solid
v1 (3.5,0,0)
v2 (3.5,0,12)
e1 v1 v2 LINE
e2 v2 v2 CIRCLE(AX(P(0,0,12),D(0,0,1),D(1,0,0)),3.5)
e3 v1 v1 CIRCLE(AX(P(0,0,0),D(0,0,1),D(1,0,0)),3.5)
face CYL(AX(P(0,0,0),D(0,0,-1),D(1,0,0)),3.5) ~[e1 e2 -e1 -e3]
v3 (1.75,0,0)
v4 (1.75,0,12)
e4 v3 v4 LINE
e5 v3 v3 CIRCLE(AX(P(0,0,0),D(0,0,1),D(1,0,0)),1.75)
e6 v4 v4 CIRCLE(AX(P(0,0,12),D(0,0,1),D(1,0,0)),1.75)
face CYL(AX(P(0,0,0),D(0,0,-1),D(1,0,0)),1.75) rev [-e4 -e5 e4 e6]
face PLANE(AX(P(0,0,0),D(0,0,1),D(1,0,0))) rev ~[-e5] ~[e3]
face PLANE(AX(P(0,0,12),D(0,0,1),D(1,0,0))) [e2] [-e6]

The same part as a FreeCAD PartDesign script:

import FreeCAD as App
import Part
import Sketcher

V = App.Vector
Q = App.Units.Quantity

doc = App.newDocument("Part")
body = doc.addObject("PartDesign::Body", "Body")

# Sketch on XY plane
sketch1 = body.newObject("Sketcher::SketchObject", "Sketch")
sketch1.AttachmentSupport = (doc.getObject("XY_Plane"), [""])
sketch1.MapMode = "FlatFace"
sketch1.addGeometry([
    Part.Circle(V(0, 0, 0), V(0, 0, 1), 3.5),
    Part.Circle(V(0, 0, 0), V(0, 0, 1), 1.8),
], False)
sketch1.addConstraint([
    Sketcher.Constraint("Coincident", 0, 3, -1, 1),
    Sketcher.Constraint("Coincident", 1, 3, -1, 1),
    Sketcher.Constraint("Diameter", 0, Q("7 mm")),
    Sketcher.Constraint("Diameter", 1, Q("3.5 mm")),
])
pad1 = body.newObject("PartDesign::Pad", "Pad")
pad1.Profile = sketch1
pad1.Length = 12

doc.recompute()
